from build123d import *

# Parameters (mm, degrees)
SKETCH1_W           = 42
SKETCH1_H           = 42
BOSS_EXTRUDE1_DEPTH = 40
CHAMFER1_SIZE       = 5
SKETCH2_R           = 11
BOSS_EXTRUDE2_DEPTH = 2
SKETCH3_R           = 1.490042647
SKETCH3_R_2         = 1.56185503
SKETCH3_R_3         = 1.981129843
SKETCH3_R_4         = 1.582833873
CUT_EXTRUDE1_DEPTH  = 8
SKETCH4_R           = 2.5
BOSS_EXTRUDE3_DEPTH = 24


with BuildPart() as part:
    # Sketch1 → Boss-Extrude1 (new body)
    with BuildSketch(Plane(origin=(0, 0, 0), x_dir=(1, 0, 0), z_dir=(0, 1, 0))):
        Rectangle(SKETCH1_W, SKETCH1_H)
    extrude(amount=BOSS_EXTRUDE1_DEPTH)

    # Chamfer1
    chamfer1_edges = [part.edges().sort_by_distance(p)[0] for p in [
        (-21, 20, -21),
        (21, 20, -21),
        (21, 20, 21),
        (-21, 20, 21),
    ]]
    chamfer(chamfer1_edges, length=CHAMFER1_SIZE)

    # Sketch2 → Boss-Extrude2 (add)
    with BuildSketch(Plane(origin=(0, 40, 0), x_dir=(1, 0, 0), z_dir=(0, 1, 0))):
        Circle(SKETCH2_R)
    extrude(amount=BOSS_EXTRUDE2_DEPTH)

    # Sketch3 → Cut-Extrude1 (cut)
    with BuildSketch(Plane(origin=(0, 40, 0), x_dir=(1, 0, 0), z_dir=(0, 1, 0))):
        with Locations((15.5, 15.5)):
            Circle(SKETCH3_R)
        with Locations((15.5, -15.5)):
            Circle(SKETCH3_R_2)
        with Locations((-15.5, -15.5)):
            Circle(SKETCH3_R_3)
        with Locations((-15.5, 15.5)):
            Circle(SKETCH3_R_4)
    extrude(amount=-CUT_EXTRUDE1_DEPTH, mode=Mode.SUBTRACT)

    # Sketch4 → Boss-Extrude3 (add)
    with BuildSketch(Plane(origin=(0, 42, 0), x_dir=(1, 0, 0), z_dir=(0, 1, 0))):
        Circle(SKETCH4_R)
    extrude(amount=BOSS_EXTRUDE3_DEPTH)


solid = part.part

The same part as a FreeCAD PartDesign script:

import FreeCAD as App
import Part
import Sketcher

V = App.Vector


def edges_at(feature, points):
    """Names of the edges that pass closest to the given points."""
    edges = feature.Shape.Edges
    near = lambda p: min(range(len(edges)), key=lambda i: edges[i].distToShape(Part.Vertex(*p))[0])
    return sorted({f"Edge{near(p) + 1}" for p in points})


def add_polygon(sketch, points):
    """Adds a closed chain of lines whose ends are joined by coincident constraints."""
    first, n = sketch.GeometryCount, len(points)
    for a, b in zip(points, points[1:] + points[:1]):
        sketch.addGeometry(Part.LineSegment(App.Vector(*a, 0), App.Vector(*b, 0)), False)
    for i in range(n):
        sketch.addConstraint(Sketcher.Constraint("Coincident", first + i, 2, first + (i + 1) % n, 1))

doc = App.newDocument("Part")
body = doc.addObject("PartDesign::Body", "Body")

# Sketch on XZ plane
sketch1 = body.newObject("Sketcher::SketchObject", "Sketch")
sketch1.AttachmentSupport = (doc.getObject("XZ_Plane"), [""])
sketch1.MapMode = "FlatFace"
add_polygon(sketch1, [(-21, -21), (-21, 21), (21, 21), (21, -21)])  # lines 0-3
sketch1.addConstraint([
    Sketcher.Constraint("Vertical", 0),
    Sketcher.Constraint("Horizontal", 1),
    Sketcher.Constraint("Vertical", 2),
    Sketcher.Constraint("Horizontal", 3),
    Sketcher.Constraint("Symmetric", 0, 2, 2, 2, -1, 1),
    Sketcher.Constraint("Equal", 3, 0),
    Sketcher.Constraint("DistanceX", 1, 1, 1, 2, 42.0),
])
pad1 = body.newObject("PartDesign::Pad", "Pad")
pad1.Profile = sketch1
pad1.Length = 40
pad1.Reversed = True
doc.recompute()

chamfer = body.newObject("PartDesign::Chamfer", "Chamfer")
chamfer.Base = (pad1, edges_at(pad1, [
    (-21, 20, -21),
    (21, 20, -21),
    (21, 20, 21),
    (-21, 20, 21),
]))
chamfer.Size = 5

# Sketch on XZ plane
sketch2 = body.newObject("Sketcher::SketchObject", "Sketch001")
sketch2.AttachmentSupport = (doc.getObject("XZ_Plane"), [""])
sketch2.MapMode = "FlatFace"
sketch2.AttachmentOffset = App.Placement(V(0, 0, -40), App.Rotation())
sketch2.addGeometry(Part.Circle(V(0, 0, 0), V(0, 0, 1), 11), False)
sketch2.addConstraint([
    Sketcher.Constraint("Coincident", 0, 3, -1, 1),
    Sketcher.Constraint("Diameter", 0, 22.0),
])
pad2 = body.newObject("PartDesign::Pad", "Pad001")
pad2.Profile = sketch2
pad2.Length = 2
pad2.Reversed = True

# Sketch on XZ plane
sketch3 = body.newObject("Sketcher::SketchObject", "Sketch002")
sketch3.AttachmentSupport = (doc.getObject("XZ_Plane"), [""])
sketch3.MapMode = "FlatFace"
sketch3.AttachmentOffset = App.Placement(V(0, 0, -40), App.Rotation())
sketch3.addGeometry([
    Part.Circle(V(15.5, -15.5, 0), V(0, 0, 1), 1.5),
    Part.Circle(V(15.5, 15.5, 0), V(0, 0, 1), 1.6),
    Part.Circle(V(-15.5, 15.5, 0), V(0, 0, 1), 2),
    Part.Circle(V(-15.5, -15.5, 0), V(0, 0, 1), 1.6),
], False)
sketch3.addConstraint([
    Sketcher.Constraint("Symmetric", 0, 3, 2, 3, -1, 1),
    Sketcher.Constraint("Symmetric", 1, 3, 3, 3, -1, 1),
    Sketcher.Constraint("Symmetric", 1, 3, 2, 3, -2),
    Sketcher.Constraint("DistanceY", 0, 3, 1, 3, 31.0),
    Sketcher.Constraint("DistanceX", 2, 3, 1, 3, 31.0),
    Sketcher.Constraint("Diameter", 1, 3.12371),
    Sketcher.Constraint("Diameter", 2, 3.96226),
    Sketcher.Constraint("Diameter", 0, 2.980085),
    Sketcher.Constraint("Diameter", 3, 3.165668),
])
pocket1 = body.newObject("PartDesign::Pocket", "Pocket")
pocket1.Profile = sketch3
pocket1.Length = 8
pocket1.Reversed = True

# Sketch on XZ plane
sketch4 = body.newObject("Sketcher::SketchObject", "Sketch003")
sketch4.AttachmentSupport = (doc.getObject("XZ_Plane"), [""])
sketch4.MapMode = "FlatFace"
sketch4.AttachmentOffset = App.Placement(V(0, 0, -42), App.Rotation())
sketch4.addGeometry(Part.Circle(V(0, 0, 0), V(0, 0, 1), 2.5), False)
sketch4.addConstraint([
    Sketcher.Constraint("Coincident", 0, 3, -1, 1),
    Sketcher.Constraint("Diameter", 0, 5.0),
])
pad3 = body.newObject("PartDesign::Pad", "Pad002")
pad3.Profile = sketch4
pad3.Length = 24
pad3.Reversed = True

doc.recompute()
